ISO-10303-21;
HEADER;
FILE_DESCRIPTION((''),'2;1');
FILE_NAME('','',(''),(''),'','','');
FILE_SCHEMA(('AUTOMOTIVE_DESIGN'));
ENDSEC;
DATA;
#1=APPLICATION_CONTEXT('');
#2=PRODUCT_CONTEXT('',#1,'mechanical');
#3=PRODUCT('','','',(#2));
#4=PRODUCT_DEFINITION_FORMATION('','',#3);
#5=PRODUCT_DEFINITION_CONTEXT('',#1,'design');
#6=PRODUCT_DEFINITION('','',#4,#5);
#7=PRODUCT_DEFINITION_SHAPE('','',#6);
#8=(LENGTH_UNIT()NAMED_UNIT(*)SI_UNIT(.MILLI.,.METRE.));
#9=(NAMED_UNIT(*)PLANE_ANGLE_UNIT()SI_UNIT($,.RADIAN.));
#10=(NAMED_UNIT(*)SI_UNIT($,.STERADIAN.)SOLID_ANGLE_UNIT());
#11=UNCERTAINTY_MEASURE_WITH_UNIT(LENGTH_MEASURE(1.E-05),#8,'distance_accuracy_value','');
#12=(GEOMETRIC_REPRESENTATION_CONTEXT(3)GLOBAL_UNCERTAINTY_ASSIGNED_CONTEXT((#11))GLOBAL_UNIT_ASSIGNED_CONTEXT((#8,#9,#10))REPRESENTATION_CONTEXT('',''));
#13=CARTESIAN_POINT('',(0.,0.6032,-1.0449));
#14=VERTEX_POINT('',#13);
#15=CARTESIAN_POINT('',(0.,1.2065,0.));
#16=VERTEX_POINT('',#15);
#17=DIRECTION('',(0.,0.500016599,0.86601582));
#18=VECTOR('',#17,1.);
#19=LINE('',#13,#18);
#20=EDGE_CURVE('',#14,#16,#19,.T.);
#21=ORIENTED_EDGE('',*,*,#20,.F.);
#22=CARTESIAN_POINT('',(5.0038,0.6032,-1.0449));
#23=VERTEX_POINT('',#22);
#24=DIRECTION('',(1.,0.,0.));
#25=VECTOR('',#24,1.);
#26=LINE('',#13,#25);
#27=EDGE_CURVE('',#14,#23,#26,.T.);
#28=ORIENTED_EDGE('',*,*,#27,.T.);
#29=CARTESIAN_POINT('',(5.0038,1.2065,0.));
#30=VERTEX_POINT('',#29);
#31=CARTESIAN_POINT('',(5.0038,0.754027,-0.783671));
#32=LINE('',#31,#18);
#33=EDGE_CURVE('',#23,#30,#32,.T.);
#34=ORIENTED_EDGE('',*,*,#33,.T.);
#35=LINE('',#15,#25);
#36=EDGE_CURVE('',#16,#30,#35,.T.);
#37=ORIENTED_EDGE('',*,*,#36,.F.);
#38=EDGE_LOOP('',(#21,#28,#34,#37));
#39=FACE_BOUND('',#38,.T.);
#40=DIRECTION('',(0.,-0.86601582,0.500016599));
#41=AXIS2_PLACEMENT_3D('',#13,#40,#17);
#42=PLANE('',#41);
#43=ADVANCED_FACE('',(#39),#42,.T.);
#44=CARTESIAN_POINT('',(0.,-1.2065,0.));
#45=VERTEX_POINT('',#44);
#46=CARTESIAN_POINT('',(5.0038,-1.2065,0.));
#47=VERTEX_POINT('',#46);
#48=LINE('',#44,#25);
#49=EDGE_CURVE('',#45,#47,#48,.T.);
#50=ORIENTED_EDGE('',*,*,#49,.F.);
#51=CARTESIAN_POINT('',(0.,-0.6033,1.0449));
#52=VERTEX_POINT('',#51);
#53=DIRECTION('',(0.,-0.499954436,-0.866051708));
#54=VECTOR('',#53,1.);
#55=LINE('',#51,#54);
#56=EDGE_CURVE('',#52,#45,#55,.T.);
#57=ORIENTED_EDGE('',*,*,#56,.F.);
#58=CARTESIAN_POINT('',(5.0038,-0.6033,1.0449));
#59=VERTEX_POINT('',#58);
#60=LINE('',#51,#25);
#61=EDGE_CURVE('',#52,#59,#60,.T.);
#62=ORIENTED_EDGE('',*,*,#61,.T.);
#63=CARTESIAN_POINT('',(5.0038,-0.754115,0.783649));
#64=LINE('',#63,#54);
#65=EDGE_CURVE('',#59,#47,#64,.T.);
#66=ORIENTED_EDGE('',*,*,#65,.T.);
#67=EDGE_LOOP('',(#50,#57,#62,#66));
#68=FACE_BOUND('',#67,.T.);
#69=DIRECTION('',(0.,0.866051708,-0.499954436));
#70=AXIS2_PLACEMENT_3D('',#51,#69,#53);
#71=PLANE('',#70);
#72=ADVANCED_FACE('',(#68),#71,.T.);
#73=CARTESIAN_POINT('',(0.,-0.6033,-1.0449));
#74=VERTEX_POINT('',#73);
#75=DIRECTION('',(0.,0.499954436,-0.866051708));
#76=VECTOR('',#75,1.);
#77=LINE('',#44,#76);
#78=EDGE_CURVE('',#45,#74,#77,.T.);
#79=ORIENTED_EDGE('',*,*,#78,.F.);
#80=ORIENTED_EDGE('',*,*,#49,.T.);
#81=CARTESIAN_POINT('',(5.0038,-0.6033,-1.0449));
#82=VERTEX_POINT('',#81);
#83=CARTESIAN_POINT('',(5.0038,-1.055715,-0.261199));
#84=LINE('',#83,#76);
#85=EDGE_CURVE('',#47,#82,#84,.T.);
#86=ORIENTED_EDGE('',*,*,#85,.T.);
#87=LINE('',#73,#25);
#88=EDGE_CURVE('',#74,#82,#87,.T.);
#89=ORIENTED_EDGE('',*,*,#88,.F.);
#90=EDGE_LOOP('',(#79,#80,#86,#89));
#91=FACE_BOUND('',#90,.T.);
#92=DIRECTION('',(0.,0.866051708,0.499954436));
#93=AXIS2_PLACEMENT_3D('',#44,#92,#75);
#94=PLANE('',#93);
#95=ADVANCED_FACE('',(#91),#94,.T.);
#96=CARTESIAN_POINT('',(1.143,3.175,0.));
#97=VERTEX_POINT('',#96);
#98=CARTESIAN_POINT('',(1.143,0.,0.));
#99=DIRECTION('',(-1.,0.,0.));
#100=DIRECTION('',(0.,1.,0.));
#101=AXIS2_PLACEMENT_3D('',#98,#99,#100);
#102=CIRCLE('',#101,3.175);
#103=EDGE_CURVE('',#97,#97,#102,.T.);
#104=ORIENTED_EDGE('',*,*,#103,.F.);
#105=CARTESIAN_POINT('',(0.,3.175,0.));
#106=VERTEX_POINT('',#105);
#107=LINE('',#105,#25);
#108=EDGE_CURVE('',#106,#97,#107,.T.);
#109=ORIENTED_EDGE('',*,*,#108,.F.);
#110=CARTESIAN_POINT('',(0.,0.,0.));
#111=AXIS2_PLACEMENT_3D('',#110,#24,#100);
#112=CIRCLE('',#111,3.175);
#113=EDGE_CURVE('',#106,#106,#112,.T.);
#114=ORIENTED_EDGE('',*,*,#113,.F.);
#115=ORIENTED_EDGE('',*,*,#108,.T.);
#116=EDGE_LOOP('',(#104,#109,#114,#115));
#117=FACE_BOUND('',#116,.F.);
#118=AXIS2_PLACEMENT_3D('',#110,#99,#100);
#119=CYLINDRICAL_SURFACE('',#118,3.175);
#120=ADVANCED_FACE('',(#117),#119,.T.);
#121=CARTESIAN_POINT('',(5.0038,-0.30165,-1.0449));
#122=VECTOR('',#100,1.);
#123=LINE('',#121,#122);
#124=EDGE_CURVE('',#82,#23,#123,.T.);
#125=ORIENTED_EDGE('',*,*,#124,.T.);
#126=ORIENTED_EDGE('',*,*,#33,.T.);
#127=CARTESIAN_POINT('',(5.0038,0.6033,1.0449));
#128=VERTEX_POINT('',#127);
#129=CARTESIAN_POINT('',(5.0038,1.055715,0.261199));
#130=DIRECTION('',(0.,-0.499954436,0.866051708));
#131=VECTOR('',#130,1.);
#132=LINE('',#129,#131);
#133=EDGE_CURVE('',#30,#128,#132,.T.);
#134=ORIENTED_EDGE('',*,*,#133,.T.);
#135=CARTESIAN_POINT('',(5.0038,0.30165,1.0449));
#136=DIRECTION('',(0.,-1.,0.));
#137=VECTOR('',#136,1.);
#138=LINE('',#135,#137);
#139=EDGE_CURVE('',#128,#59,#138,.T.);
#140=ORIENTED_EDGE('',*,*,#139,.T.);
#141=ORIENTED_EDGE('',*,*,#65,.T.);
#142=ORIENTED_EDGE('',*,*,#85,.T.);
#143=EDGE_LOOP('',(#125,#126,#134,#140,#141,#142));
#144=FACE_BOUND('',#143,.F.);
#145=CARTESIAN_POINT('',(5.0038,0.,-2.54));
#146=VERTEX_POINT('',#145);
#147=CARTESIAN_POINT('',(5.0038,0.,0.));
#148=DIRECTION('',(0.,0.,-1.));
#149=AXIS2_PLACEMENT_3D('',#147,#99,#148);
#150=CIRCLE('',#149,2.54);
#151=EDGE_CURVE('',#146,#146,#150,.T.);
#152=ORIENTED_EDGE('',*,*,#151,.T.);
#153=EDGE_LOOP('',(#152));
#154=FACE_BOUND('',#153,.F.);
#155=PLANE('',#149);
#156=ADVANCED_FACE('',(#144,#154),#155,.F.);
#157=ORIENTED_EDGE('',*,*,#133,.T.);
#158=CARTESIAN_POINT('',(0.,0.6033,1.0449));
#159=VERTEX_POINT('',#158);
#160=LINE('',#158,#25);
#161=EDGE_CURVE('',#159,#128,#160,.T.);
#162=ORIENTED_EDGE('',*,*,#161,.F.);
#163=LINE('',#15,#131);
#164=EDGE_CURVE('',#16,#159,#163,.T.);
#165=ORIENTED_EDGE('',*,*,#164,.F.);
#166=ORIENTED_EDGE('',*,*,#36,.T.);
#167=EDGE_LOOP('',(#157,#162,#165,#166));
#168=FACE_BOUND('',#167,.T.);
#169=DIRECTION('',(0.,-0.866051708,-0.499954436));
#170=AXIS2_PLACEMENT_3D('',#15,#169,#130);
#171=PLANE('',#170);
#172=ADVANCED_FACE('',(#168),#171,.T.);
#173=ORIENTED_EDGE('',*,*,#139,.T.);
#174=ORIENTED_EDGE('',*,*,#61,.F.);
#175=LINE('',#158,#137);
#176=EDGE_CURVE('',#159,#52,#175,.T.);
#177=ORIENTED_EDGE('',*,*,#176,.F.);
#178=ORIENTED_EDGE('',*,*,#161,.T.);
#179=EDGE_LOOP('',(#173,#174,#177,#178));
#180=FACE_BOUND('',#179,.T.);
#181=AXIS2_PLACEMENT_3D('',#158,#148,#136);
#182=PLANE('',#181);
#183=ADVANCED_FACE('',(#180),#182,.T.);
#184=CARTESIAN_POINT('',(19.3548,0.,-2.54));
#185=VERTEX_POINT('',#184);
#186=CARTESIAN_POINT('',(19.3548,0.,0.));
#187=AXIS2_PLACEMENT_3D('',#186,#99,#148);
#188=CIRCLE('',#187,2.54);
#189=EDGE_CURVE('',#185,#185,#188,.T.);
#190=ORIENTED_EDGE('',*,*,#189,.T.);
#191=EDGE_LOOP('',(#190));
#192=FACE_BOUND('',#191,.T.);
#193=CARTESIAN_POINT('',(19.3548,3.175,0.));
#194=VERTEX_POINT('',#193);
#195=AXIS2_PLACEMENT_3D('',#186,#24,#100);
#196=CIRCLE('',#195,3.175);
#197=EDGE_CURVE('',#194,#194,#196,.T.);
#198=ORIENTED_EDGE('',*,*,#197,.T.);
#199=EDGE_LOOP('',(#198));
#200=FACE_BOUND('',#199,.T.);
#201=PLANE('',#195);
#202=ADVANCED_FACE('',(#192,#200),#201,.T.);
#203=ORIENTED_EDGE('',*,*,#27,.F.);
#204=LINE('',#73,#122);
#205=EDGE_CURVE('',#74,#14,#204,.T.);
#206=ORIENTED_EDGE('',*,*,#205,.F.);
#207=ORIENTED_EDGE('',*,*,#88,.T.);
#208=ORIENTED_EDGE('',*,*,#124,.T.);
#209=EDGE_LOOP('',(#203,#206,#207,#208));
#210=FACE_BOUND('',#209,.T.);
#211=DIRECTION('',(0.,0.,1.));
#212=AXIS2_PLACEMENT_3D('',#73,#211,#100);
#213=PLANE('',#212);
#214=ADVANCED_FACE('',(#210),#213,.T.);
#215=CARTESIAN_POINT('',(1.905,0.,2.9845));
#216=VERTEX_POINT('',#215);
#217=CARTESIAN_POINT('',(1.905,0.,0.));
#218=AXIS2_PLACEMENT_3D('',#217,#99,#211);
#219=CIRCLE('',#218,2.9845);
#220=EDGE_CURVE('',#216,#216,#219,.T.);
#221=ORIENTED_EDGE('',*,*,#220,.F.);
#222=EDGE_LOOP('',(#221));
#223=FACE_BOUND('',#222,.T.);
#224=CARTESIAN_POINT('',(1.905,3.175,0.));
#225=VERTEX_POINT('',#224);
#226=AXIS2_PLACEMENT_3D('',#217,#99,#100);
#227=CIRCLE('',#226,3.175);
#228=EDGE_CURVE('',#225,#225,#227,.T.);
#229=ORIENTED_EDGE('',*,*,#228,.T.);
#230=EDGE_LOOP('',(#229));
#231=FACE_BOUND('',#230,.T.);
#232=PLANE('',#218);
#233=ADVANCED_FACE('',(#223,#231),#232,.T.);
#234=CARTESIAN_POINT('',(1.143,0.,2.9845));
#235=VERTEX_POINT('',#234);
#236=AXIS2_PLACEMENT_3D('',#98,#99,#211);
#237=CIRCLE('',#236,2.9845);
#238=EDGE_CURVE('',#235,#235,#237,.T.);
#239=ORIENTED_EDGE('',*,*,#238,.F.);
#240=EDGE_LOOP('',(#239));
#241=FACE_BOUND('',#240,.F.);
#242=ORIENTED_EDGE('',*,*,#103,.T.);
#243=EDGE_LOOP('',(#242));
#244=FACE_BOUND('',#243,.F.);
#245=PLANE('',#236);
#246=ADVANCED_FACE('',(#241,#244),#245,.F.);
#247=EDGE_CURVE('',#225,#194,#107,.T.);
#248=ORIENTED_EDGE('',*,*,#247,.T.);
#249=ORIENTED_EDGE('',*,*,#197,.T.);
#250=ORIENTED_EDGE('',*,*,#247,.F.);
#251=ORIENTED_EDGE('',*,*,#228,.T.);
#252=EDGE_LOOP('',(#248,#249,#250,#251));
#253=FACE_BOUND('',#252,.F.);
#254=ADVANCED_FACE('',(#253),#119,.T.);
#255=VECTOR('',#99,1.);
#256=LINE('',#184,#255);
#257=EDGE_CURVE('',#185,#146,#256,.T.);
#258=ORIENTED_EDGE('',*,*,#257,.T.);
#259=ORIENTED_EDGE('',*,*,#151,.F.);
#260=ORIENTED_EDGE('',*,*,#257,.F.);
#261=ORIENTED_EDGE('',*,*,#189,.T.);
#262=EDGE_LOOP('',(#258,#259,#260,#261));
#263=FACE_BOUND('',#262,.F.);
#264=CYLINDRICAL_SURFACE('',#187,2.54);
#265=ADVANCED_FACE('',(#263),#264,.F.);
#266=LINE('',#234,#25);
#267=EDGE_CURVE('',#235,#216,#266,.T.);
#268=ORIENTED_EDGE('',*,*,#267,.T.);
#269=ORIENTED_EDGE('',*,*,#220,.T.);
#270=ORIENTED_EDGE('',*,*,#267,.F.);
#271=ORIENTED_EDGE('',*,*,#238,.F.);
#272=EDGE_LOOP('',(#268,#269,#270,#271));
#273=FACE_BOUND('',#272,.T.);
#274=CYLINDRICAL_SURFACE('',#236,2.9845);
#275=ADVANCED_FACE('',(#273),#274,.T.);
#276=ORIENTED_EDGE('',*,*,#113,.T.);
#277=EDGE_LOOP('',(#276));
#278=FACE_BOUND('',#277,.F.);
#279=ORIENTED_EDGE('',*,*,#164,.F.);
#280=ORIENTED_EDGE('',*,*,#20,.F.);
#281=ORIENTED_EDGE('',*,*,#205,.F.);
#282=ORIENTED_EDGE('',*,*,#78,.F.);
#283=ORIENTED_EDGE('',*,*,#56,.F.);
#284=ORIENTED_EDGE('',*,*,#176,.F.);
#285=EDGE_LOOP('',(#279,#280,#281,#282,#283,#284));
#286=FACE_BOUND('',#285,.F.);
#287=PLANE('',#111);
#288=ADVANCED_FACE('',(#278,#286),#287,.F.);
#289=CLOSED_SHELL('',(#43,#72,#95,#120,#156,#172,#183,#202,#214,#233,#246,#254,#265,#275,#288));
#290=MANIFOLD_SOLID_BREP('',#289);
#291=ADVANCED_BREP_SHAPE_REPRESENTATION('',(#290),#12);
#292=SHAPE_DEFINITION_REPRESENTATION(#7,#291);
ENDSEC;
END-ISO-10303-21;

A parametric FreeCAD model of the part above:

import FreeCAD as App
import Part
import Sketcher
Q = App.Units.Quantity


def add_polygon(sketch, points):
    """Adds a closed chain of lines whose ends are joined by coincident constraints."""
    first, n = sketch.GeometryCount, len(points)
    for a, b in zip(points, points[1:] + points[:1]):
        sketch.addGeometry(Part.LineSegment(App.Vector(*a, 0), App.Vector(*b, 0)), False)
    for i in range(n):
        sketch.addConstraint(Sketcher.Constraint("Coincident", first + i, 2, first + (i + 1) % n, 1))

doc = App.newDocument("Part")
body = doc.addObject("PartDesign::Body", "Body")

# Sketch on YZ plane
sketch1 = body.newObject("Sketcher::SketchObject", "Sketch")
sketch1.AttachmentSupport = (doc.getObject("YZ_Plane"), [""])
sketch1.MapMode = "FlatFace"
sketch1.addGeometry(Part.Circle(App.Vector(0, 0, 0), App.Vector(0, 0, 1), 3.175), False)
sketch1.addConstraint([
    Sketcher.Constraint("Coincident", 0, 3, -1, 1),
    Sketcher.Constraint("Diameter", 0, Q("0.25 in")),
])
pad1 = body.newObject("PartDesign::Pad", "Pad")
pad1.Profile = sketch1
pad1.Length = Q("0.762 in")

# Sketch on YZ plane
sketch2 = body.newObject("Sketcher::SketchObject", "Sketch001")
sketch2.AttachmentSupport = (doc.getObject("YZ_Plane"), [""])
sketch2.MapMode = "FlatFace"
sketch2.AttachmentOffset = App.Placement(App.Vector(0, 0, 0.045 * 25.4), App.Rotation())
sketch2.addGeometry([
    Part.Circle(App.Vector(0, 0, 0), App.Vector(0, 0, 1), 3.175),
    Part.Circle(App.Vector(0, 0, 0), App.Vector(0, 0, 1), 2.9845),
], False)
sketch2.addConstraint([
    Sketcher.Constraint("Coincident", 0, 3, -1, 1),
    Sketcher.Constraint("Coincident", 1, 3, -1, 1),
    Sketcher.Constraint("Diameter", 1, Q("0.235 in")),
    Sketcher.Constraint("Diameter", 0, Q("0.25 in")),
])
pocket1 = body.newObject("PartDesign::Pocket", "Pocket")
pocket1.Profile = sketch2
pocket1.Length = Q("0.03 in")
pocket1.Reversed = True

# Sketch on YZ plane
sketch3 = body.newObject("Sketcher::SketchObject", "Sketch002")
sketch3.AttachmentSupport = (doc.getObject("YZ_Plane"), [""])
sketch3.MapMode = "FlatFace"
sketch3.AttachmentOffset = App.Placement(App.Vector(0, 0, 0.762 * 25.4), App.Rotation())
sketch3.addGeometry(Part.Circle(App.Vector(0, 0, 0), App.Vector(0, 0, 1), 2.54), False)
sketch3.addConstraint([
    Sketcher.Constraint("Coincident", 0, 3, -1, 1),
    Sketcher.Constraint("Diameter", 0, Q("0.2 in")),
])
doc.recompute()
hole = body.newObject("PartDesign::Hole", "Hole")
hole.Profile = sketch3
hole.ThreadType = "None"
hole.Diameter = Q("0.2 in")
hole.DepthType = "Dimension"
hole.Depth = Q("0.565 in")
hole.DrillPoint = "Flat"

# Sketch on YZ plane
sketch4 = body.newObject("Sketcher::SketchObject", "Sketch003")
sketch4.AttachmentSupport = (doc.getObject("YZ_Plane"), [""])
sketch4.MapMode = "FlatFace"
add_polygon(sketch4, [(0.6033, 1.0449), (1.2065, 0), (0.6032, -1.0449), (-0.6033, -1.0449), (-1.2065, 0), (-0.6033, 1.0449)])  # lines 0-5
sketch4.addConstraint([
    Sketcher.Constraint("Horizontal", 2),
    Sketcher.Constraint("Horizontal", 5),
    Sketcher.Constraint("Symmetric", 0, 2, 3, 2, -1, 1),
    Sketcher.Constraint("Symmetric", 1, 2, 4, 2, -1, 1),
    Sketcher.Constraint("PointOnObject", 0, 2, -1),
    Sketcher.Constraint("Parallel", 0, 3),
    Sketcher.Constraint("Vertical", 2, 2, 4, 2),
    Sketcher.Constraint("Angle", 1, Q("-120.001 deg")),
    Sketcher.Constraint("DistanceX", 3, 2, 0, 2, Q("0.095 in")),
    Sketcher.Constraint("DistanceX", 2, 2, 2, 1, Q("0.0475 in")),
])
pocket2 = body.newObject("PartDesign::Pocket", "Pocket001")
pocket2.Profile = sketch4
pocket2.Type = "ThroughAll"
pocket2.Reversed = True

doc.recompute()
